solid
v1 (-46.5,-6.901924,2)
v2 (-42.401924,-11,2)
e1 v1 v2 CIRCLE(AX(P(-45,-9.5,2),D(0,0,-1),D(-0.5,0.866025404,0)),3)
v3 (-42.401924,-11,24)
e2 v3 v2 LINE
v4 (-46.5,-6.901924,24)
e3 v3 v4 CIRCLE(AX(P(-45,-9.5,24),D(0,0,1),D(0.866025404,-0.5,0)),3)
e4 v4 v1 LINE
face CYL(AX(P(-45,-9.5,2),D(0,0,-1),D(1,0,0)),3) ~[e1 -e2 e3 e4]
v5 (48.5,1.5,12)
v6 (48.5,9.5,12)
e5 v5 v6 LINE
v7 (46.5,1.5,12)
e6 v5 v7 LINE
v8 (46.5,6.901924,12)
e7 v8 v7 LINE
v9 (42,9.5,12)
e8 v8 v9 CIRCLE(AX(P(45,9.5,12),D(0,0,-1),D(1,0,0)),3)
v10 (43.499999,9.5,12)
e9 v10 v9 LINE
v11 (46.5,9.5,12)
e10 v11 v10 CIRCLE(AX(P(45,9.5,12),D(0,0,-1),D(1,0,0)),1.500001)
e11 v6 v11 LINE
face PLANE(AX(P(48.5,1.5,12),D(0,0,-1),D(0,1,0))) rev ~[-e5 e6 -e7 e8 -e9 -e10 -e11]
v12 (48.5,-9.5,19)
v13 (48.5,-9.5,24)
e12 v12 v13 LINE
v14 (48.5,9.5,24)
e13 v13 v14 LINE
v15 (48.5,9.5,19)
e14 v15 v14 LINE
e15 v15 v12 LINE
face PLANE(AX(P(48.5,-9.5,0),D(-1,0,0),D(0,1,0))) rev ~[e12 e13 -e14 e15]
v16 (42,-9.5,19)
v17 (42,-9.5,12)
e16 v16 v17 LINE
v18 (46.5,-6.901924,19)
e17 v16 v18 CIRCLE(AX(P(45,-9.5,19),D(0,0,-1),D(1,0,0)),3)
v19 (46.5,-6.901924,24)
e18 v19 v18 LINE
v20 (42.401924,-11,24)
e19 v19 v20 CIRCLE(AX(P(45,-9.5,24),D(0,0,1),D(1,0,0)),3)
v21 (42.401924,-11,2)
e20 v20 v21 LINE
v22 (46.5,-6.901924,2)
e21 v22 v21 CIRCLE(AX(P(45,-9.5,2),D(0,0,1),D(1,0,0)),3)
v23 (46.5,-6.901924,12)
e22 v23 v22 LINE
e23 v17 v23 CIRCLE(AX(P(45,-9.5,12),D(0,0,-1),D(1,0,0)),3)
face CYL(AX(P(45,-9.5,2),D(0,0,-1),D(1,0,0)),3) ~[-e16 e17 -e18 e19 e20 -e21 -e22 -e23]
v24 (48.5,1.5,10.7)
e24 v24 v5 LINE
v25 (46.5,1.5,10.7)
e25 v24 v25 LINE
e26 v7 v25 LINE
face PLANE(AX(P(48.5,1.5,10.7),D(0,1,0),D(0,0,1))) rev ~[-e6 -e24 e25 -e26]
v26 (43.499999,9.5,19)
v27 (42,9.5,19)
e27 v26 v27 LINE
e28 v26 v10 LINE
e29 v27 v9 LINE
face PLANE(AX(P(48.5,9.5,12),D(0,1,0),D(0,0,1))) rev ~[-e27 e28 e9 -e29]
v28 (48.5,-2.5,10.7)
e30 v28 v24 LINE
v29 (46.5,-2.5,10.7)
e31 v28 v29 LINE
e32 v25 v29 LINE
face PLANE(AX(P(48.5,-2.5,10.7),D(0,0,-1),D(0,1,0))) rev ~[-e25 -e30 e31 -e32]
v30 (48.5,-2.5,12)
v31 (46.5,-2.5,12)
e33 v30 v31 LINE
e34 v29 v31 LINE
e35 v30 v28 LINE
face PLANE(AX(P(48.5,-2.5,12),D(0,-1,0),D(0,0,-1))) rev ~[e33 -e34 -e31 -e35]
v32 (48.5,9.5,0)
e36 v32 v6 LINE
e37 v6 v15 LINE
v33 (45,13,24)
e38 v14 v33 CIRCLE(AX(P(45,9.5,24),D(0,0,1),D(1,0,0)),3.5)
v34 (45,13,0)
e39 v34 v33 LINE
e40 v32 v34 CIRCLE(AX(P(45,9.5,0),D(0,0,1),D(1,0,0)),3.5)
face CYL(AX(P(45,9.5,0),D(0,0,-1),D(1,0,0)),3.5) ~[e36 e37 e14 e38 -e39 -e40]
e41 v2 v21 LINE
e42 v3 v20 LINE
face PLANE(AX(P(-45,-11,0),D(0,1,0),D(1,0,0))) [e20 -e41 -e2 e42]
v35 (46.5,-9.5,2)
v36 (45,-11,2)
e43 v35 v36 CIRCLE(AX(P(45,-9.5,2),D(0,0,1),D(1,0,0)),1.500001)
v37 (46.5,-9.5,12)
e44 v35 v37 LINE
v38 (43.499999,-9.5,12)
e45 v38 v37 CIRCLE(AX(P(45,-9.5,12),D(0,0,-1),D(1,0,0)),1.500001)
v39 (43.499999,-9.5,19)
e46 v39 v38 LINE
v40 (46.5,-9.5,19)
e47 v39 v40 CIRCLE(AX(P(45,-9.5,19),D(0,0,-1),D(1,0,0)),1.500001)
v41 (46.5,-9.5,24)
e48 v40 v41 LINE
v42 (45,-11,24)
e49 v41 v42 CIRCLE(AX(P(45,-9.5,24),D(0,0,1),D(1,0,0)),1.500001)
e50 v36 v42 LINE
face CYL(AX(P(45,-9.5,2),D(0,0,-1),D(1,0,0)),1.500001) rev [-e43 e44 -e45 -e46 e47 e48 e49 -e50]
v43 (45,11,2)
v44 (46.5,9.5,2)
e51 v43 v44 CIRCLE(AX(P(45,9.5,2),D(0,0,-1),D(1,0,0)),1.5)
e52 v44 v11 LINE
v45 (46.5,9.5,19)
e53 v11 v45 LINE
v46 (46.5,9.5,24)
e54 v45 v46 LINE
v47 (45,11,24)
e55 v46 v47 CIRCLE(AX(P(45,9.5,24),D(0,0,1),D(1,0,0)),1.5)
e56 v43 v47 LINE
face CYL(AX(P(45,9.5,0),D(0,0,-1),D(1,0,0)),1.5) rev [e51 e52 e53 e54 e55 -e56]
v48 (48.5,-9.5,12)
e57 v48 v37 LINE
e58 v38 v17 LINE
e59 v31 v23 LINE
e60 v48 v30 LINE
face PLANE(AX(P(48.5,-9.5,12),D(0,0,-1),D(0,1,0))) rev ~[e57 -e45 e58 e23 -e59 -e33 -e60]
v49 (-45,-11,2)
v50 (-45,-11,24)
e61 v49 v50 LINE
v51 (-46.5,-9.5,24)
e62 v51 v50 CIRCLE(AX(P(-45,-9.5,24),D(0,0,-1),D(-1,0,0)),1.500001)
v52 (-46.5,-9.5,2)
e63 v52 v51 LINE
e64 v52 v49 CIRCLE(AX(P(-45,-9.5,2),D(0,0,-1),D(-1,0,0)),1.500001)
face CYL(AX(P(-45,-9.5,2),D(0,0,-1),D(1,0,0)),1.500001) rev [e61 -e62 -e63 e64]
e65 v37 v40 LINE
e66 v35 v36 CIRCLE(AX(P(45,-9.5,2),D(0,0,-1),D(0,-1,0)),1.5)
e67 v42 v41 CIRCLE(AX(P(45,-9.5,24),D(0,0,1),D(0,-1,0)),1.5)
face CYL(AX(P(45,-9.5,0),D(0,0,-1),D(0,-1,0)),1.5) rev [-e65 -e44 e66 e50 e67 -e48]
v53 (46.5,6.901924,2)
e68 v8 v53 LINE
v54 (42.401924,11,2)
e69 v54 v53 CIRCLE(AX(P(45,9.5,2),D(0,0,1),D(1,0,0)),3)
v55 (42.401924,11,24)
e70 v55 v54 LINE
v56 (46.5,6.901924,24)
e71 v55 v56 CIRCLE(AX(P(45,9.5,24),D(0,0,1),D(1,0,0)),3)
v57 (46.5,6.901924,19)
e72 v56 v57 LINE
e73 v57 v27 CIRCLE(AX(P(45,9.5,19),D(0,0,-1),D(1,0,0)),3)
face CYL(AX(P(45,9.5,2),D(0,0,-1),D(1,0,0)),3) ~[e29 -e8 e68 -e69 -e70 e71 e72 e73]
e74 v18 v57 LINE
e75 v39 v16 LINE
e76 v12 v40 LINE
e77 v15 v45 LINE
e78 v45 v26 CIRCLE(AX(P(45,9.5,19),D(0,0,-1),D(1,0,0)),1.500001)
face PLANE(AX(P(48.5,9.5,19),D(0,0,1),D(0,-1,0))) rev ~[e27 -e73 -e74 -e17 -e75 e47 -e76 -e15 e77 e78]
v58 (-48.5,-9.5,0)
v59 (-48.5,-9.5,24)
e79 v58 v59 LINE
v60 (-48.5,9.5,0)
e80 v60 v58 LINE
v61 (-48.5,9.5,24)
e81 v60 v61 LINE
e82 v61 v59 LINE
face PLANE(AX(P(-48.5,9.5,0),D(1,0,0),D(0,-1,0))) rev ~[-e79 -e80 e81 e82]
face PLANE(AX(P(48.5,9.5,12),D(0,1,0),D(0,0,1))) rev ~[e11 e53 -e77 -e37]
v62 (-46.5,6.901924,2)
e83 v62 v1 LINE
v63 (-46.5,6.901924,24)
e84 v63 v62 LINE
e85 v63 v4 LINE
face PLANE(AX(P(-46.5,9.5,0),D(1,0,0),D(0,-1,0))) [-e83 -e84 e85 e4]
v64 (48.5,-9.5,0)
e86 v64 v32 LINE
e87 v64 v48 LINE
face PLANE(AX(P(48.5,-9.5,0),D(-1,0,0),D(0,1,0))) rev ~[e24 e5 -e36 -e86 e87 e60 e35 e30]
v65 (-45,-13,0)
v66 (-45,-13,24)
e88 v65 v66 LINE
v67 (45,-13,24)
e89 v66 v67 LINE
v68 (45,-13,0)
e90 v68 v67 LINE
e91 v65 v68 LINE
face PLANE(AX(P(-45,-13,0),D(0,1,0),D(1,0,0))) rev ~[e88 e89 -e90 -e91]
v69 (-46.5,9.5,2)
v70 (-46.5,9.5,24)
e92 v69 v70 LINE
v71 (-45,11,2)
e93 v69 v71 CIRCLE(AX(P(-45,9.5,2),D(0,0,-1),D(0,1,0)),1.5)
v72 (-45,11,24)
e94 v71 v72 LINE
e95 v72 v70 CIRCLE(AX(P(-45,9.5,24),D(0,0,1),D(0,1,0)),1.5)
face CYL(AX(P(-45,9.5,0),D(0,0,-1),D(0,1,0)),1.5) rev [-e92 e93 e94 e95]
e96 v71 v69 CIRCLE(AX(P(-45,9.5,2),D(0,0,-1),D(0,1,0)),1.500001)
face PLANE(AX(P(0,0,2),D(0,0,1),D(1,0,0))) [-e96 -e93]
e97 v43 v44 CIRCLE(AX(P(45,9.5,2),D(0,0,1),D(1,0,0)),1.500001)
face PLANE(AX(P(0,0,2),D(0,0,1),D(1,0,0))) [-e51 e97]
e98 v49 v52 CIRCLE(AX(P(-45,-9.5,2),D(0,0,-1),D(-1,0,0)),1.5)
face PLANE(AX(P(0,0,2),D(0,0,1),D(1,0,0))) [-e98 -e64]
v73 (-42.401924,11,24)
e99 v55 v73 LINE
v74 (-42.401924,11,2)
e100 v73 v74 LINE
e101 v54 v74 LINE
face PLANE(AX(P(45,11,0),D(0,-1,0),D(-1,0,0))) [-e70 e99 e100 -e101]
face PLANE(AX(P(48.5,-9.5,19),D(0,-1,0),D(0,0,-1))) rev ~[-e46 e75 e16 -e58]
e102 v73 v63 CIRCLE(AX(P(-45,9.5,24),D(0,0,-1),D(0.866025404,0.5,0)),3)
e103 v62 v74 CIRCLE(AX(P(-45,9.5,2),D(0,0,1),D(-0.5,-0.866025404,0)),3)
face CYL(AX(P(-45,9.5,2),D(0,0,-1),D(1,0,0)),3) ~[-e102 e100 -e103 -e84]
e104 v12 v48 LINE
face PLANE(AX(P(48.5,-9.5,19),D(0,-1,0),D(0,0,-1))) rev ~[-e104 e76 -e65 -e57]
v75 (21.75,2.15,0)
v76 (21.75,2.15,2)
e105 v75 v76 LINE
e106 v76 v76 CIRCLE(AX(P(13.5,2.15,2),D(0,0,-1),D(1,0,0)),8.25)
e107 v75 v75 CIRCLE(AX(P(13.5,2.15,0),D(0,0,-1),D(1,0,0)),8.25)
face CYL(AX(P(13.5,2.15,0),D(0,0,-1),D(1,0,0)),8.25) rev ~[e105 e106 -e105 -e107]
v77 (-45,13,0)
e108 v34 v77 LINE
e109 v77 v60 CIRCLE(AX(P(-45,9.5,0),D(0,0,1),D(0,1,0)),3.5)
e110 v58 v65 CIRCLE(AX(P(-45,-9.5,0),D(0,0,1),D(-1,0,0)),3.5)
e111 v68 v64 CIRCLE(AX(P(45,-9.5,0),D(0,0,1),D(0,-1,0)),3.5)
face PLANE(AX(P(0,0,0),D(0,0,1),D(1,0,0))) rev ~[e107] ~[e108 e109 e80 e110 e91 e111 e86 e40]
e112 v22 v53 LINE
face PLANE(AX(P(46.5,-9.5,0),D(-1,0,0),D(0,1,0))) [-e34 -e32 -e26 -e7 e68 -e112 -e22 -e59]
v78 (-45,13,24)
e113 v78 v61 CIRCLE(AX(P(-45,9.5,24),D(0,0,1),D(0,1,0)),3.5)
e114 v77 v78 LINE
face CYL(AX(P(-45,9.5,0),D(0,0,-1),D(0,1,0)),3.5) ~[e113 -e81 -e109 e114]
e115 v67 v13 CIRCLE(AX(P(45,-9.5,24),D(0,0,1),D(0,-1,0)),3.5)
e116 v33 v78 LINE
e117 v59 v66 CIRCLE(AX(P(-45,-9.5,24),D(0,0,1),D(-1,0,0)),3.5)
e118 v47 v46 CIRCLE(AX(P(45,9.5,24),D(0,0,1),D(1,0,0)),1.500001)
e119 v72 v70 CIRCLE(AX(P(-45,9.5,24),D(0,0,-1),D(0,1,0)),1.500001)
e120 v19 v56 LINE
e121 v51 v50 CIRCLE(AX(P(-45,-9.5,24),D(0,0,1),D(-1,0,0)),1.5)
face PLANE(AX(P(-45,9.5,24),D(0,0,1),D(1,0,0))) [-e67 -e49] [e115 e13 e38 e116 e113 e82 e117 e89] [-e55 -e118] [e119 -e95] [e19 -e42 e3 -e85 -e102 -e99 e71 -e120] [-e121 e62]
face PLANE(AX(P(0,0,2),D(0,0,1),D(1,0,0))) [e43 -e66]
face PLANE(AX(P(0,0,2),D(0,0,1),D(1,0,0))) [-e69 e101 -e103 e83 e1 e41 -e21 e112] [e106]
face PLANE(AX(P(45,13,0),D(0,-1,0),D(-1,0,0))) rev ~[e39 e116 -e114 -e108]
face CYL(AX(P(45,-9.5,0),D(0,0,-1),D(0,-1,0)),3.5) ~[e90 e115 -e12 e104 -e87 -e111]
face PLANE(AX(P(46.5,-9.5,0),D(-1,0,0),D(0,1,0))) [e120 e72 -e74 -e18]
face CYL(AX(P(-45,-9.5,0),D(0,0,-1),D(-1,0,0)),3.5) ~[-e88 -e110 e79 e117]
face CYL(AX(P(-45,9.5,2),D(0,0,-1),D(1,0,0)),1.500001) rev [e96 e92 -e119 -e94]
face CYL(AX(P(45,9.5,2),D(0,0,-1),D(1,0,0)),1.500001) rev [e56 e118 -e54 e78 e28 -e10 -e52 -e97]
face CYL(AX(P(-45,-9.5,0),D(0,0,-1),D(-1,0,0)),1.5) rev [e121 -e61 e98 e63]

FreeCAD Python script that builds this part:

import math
import FreeCAD as App
import Part
import Sketcher

V = App.Vector


def faces_at(feature, points):
    """Names of the faces that lie closest to the given points."""
    faces = feature.Shape.Faces
    near = lambda p: min(range(len(faces)), key=lambda i: faces[i].distToShape(Part.Vertex(*p))[0])
    return sorted({f"Face{near(p) + 1}" for p in points})


def add_polygon(sketch, points):
    """Adds a closed chain of lines whose ends are joined by coincident constraints."""
    first, n = sketch.GeometryCount, len(points)
    for a, b in zip(points, points[1:] + points[:1]):
        sketch.addGeometry(Part.LineSegment(App.Vector(*a, 0), App.Vector(*b, 0)), False)
    for i in range(n):
        sketch.addConstraint(Sketcher.Constraint("Coincident", first + i, 2, first + (i + 1) % n, 1))

doc = App.newDocument("Part")
body = doc.addObject("PartDesign::Body", "Body")

sketch1 = body.newObject("Sketcher::SketchObject", "Sketch")
sketch1.AttachmentSupport = (doc.getObject("XY_Plane"), [""])
sketch1.MapMode = "FlatFace"
sketch1.addGeometry([
    Part.ArcOfCircle(Part.Circle(V(45, 9.5, 0), V(0, 0, 1), 3.5), math.radians(0), math.radians(90)),
    Part.LineSegment(V(45, 13, 0), V(-45, 13, 0)),
    Part.ArcOfCircle(Part.Circle(V(-45, 9.5, 0), V(0, 0, 1), 3.5), math.radians(90), math.radians(180)),
    Part.LineSegment(V(-48.5, 9.5, 0), V(-48.5, -9.5, 0)),
    Part.ArcOfCircle(Part.Circle(V(-45, -9.5, 0), V(0, 0, 1), 3.5), math.radians(180), math.radians(270)),
    Part.LineSegment(V(-45, -13, 0), V(45, -13, 0)),
    Part.ArcOfCircle(Part.Circle(V(45, -9.5, 0), V(0, 0, 1), 3.5), math.radians(-90), math.radians(0)),
    Part.LineSegment(V(48.5, -9.5, 0), V(48.5, 9.5, 0)),
], False)
sketch1.addConstraint([
    Sketcher.Constraint("Tangent", 0, 2, 1, 1),
    Sketcher.Constraint("Tangent", 1, 2, 2, 1),
    Sketcher.Constraint("Tangent", 2, 2, 3, 1),
    Sketcher.Constraint("Tangent", 3, 2, 4, 1),
    Sketcher.Constraint("Tangent", 4, 2, 5, 1),
    Sketcher.Constraint("Tangent", 5, 2, 6, 1),
    Sketcher.Constraint("Tangent", 6, 2, 7, 1),
    Sketcher.Constraint("Tangent", 7, 2, 0, 1),
    Sketcher.Constraint("Horizontal", 1),
    Sketcher.Constraint("Vertical", 3),
    Sketcher.Constraint("Horizontal", 5),
    Sketcher.Constraint("Vertical", 7),
    Sketcher.Constraint("Equal", 0, 2),
    Sketcher.Constraint("Equal", 2, 4),
    Sketcher.Constraint("Equal", 4, 6),
    Sketcher.Constraint("Symmetric", 0, 3, 4, 3, -1, 1),
    Sketcher.Constraint("Radius", 0, 3.5),
    Sketcher.Constraint("DistanceX", 1, 2, 1, 1, 90.0),
    Sketcher.Constraint("DistanceY", 3, 2, 3, 1, 19.0),
])
pad1 = body.newObject("PartDesign::Pad", "Pad")
pad1.Profile = sketch1
pad1.Length = 24
doc.recompute()

thickness = body.newObject("PartDesign::Thickness", "Thickness")
thickness.Base = (pad1, faces_at(pad1, [(0, 0, 24)]))
thickness.Value = 2
thickness.Reversed = True
thickness.Join = "Arc"

sketch2 = body.newObject("Sketcher::SketchObject", "Sketch001")
sketch2.AttachmentSupport = (doc.getObject("XY_Plane"), [""])
sketch2.MapMode = "FlatFace"
sketch2.addGeometry(Part.Circle(V(13.5, 2.15, 0), V(0, 0, 1), 8.25), False)
sketch2.addConstraint([
    Sketcher.Constraint("Diameter", 0, 16.5),
    Sketcher.Constraint("DistanceX", -1, 1, 0, 3, 13.5),
    Sketcher.Constraint("DistanceY", -1, 1, 0, 3, 2.15),
])
pocket1 = body.newObject("PartDesign::Pocket", "Pocket")
pocket1.Profile = sketch2
pocket1.Type = "ThroughAll"
pocket1.Reversed = True

sketch3 = body.newObject("Sketcher::SketchObject", "Sketch002")
sketch3.AttachmentSupport = (doc.getObject("XY_Plane"), [""])
sketch3.MapMode = "FlatFace"
sketch3.AttachmentOffset = App.Placement(V(0, 0, 2), App.Rotation())
sketch3.addGeometry([
    Part.Circle(V(-45, 9.5, 0), V(0, 0, 1), 3),
    Part.Circle(V(-45, 9.5, 0), V(0, 0, 1), 1.500001),
    Part.Circle(V(45, 9.5, 0), V(0, 0, 1), 3),
    Part.Circle(V(45, 9.5, 0), V(0, 0, 1), 1.500001),
    Part.Circle(V(-45, -9.5, 0), V(0, 0, 1), 3),
    Part.Circle(V(-45, -9.5, 0), V(0, 0, 1), 1.500001),
    Part.Circle(V(45, -9.5, 0), V(0, 0, 1), 3),
    Part.Circle(V(45, -9.5, 0), V(0, 0, 1), 1.500001),
], False)
sketch3.addConstraint([
    Sketcher.Constraint("Coincident", 1, 3, 0, 3),
    Sketcher.Constraint("Coincident", 3, 3, 2, 3),
    Sketcher.Constraint("Coincident", 5, 3, 4, 3),
    Sketcher.Constraint("Coincident", 7, 3, 6, 3),
    Sketcher.Constraint("Equal", 0, 2),
    Sketcher.Constraint("Equal", 1, 3),
    Sketcher.Constraint("Equal", 2, 4),
    Sketcher.Constraint("Equal", 3, 5),
    Sketcher.Constraint("Equal", 4, 6),
    Sketcher.Constraint("Equal", 5, 7),
    Sketcher.Constraint("Symmetric", 2, 3, 4, 3, -1, 1),
    Sketcher.Constraint("Symmetric", 0, 3, 6, 3, -1, 1),
    Sketcher.Constraint("Symmetric", 0, 3, 2, 3, -2),
    Sketcher.Constraint("Diameter", 0, 6.0),
    Sketcher.Constraint("DistanceX", 0, 3, -1, 1, 45.0),
    Sketcher.Constraint("DistanceY", 4, 3, 0, 3, 19.0),
    Sketcher.Constraint("Diameter", 1, 3.000002),
])
pad2 = body.newObject("PartDesign::Pad", "Pad001")
pad2.Profile = sketch3
pad2.Length = 22

sketch4 = body.newObject("Sketcher::SketchObject", "Sketch003")
sketch4.AttachmentSupport = (doc.getObject("YZ_Plane"), [""])
sketch4.MapMode = "FlatFace"
sketch4.AttachmentOffset = App.Placement(V(0, 0, 48.5), App.Rotation())
add_polygon(sketch4, [(9.5, 19), (-9.5, 19), (-9.5, 12), (-2.5, 12), (-2.5, 10.7), (1.5, 10.7), (1.5, 12), (9.5, 12)])
sketch4.addConstraint([
    Sketcher.Constraint("Horizontal", 0),
    Sketcher.Constraint("Vertical", 1),
    Sketcher.Constraint("Horizontal", 2),
    Sketcher.Constraint("Vertical", 3),
    Sketcher.Constraint("Horizontal", 4),
    Sketcher.Constraint("Vertical", 5),
    Sketcher.Constraint("Horizontal", 6),
    Sketcher.Constraint("Vertical", 7),
    Sketcher.Constraint("Symmetric", 1, 2, 6, 2, -2),
    Sketcher.Constraint("Equal", 2, 1),
    Sketcher.Constraint("DistanceX", 0, 2, 0, 1, 19.0),
    Sketcher.Constraint("DistanceX", 2, 1, 2, 2, 7.0),
    Sketcher.Constraint("DistanceX", 4, 1, 4, 2, 4.0),
    Sketcher.Constraint("DistanceY", 3, 2, 3, 1, 1.3),
    Sketcher.Constraint("DistanceY", -1, 1, 0, 2, 19.0),
])
pocket2 = body.newObject("PartDesign::Pocket", "Pocket001")
pocket2.Profile = sketch4
pocket2.Length = 10

doc.recompute()
